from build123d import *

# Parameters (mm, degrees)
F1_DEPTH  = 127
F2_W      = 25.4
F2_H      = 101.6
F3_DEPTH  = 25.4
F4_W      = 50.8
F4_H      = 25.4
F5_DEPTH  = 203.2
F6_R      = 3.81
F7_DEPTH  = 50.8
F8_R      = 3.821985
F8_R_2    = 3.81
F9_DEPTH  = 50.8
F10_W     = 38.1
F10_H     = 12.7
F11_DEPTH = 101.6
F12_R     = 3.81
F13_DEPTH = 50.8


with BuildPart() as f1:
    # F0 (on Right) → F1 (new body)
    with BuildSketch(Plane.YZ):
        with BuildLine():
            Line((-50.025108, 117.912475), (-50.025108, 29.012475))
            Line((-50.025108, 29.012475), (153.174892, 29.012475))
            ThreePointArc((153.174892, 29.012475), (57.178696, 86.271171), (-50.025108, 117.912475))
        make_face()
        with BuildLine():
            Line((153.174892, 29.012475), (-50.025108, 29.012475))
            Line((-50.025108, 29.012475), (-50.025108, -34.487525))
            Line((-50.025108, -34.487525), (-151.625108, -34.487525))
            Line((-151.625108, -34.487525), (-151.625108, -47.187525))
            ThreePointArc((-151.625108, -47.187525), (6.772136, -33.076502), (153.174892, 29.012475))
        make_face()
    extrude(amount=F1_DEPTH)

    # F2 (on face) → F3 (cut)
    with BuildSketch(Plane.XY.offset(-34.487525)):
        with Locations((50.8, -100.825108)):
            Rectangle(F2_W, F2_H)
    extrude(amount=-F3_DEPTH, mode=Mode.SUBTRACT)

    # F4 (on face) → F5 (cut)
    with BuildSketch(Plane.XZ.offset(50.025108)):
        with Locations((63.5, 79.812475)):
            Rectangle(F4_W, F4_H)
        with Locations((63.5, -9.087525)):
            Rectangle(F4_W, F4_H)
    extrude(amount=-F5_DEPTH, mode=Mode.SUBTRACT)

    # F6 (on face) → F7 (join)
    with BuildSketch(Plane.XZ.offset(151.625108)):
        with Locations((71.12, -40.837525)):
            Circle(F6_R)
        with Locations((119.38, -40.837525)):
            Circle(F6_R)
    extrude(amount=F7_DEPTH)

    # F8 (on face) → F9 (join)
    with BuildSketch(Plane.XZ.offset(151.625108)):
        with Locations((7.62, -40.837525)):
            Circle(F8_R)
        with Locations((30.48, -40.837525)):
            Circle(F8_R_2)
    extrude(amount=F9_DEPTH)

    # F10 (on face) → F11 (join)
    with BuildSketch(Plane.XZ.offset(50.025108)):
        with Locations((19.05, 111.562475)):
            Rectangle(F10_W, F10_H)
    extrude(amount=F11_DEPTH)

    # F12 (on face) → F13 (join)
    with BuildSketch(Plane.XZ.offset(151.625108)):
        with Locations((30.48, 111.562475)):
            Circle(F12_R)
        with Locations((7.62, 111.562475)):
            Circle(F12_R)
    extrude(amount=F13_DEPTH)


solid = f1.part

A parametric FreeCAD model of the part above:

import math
import FreeCAD as App
import Part
import Sketcher

V = App.Vector
Q = App.Units.Quantity


def add_polygon(sketch, points):
    """Adds a closed chain of lines whose ends are joined by coincident constraints."""
    first, n = sketch.GeometryCount, len(points)
    for a, b in zip(points, points[1:] + points[:1]):
        sketch.addGeometry(Part.LineSegment(App.Vector(*a, 0), App.Vector(*b, 0)), False)
    for i in range(n):
        sketch.addConstraint(Sketcher.Constraint("Coincident", first + i, 2, first + (i + 1) % n, 1))

doc = App.newDocument("Part")
body = doc.addObject("PartDesign::Body", "Body")

# Sketch on YZ plane
sketch1 = body.newObject("Sketcher::SketchObject", "Sketch")
sketch1.AttachmentSupport = (doc.getObject("YZ_Plane"), [""])
sketch1.MapMode = "FlatFace"
sketch1.addGeometry([
    Part.LineSegment(V(-50.025108, 117.912475, 0), V(-50.025108, -34.487525, 0)),  # 0
    Part.LineSegment(V(-50.025108, -34.487525, 0), V(-151.625108, -34.487525, 0)),  # 1
    Part.LineSegment(V(-151.625108, -34.487525, 0), V(-151.625108, -47.187525, 0)),  # 2
    Part.ArcOfCircle(Part.Circle(V(-117.249571, 463.010327, 0), V(0, 0, 1), 511.354599), math.radians(-93.854585), math.radians(-58.072928)),  # 3
    Part.ArcOfCircle(Part.Circle(V(-121.914378, -323.084428, 0), V(0, 0, 1), 446.818012), math.radians(51.999897), math.radians(80.741348)),  # 4
], False)
sketch1.addConstraint([
    Sketcher.Constraint("Coincident", 0, 2, 1, 1),
    Sketcher.Constraint("Coincident", 1, 2, 2, 1),
    Sketcher.Constraint("Coincident", 2, 2, 3, 1),
    Sketcher.Constraint("Coincident", 3, 2, 4, 1),
    Sketcher.Constraint("Coincident", 4, 2, 0, 1),
    Sketcher.Constraint("Vertical", 0),
    Sketcher.Constraint("Horizontal", 1),
    Sketcher.Constraint("Vertical", 2),
    Sketcher.Constraint("DistanceX", 1, 2, 1, 1, Q("4 in")),
    Sketcher.Constraint("DistanceY", 0, 2, 0, 1, Q("6 in")),
    Sketcher.Constraint("DistanceY", 2, 2, 2, 1, Q("0.5 in")),
    Sketcher.Constraint("Radius", 3, Q("511.354599 mm")),
    Sketcher.Constraint("Radius", 4, Q("446.818012 mm")),
    Sketcher.Constraint("DistanceX", 3, 3, -1, 1, Q("117.249571 mm")),
    Sketcher.Constraint("DistanceX", 4, 3, -1, 1, Q("121.914378 mm")),
    Sketcher.Constraint("DistanceX", 0, 2, -1, 1, Q("50.025108 mm")),
    Sketcher.Constraint("DistanceY", -1, 1, 3, 3, Q("463.010327 mm")),
])
pad1 = body.newObject("PartDesign::Pad", "Pad")
pad1.Profile = sketch1
pad1.Length = Q("5 in")

# Sketch on XY plane
sketch2 = body.newObject("Sketcher::SketchObject", "Sketch001")
sketch2.AttachmentSupport = (doc.getObject("XY_Plane"), [""])
sketch2.MapMode = "FlatFace"
sketch2.AttachmentOffset = App.Placement(V(0, 0, -34.487525), App.Rotation())
add_polygon(sketch2, [(38.1, -50.025108), (38.1, -151.625108), (63.5, -151.625108), (63.5, -50.025108)])  # lines 0-3
sketch2.addConstraint([
    Sketcher.Constraint("Vertical", 0),
    Sketcher.Constraint("Horizontal", 1),
    Sketcher.Constraint("Vertical", 2),
    Sketcher.Constraint("Horizontal", 3),
    Sketcher.Constraint("DistanceX", 1, 1, 1, 2, Q("1 in")),
    Sketcher.Constraint("DistanceY", 0, 2, 0, 1, Q("4 in")),
    Sketcher.Constraint("DistanceX", -1, 1, 0, 2, Q("1.5 in")),
    Sketcher.Constraint("DistanceY", 0, 2, -1, 1, Q("151.625108 mm")),
])
pocket1 = body.newObject("PartDesign::Pocket", "Pocket")
pocket1.Profile = sketch2
pocket1.Length = Q("1 in")

# Sketch on XZ plane
sketch3 = body.newObject("Sketcher::SketchObject", "Sketch002")
sketch3.AttachmentSupport = (doc.getObject("XZ_Plane"), [""])
sketch3.MapMode = "FlatFace"
sketch3.AttachmentOffset = App.Placement(V(0, 0, 50.025108), App.Rotation())
add_polygon(sketch3, [(38.1, 92.512475), (38.1, 67.112475), (88.9, 67.112475), (88.9, 92.512475)])  # lines 0-3
add_polygon(sketch3, [(38.1, 3.612475), (38.1, -21.787525), (88.9, -21.787525), (88.9, 3.612475)])  # lines 4-7
sketch3.addConstraint([
    Sketcher.Constraint("Vertical", 0),
    Sketcher.Constraint("Horizontal", 1),
    Sketcher.Constraint("Vertical", 2),
    Sketcher.Constraint("Horizontal", 3),
    Sketcher.Constraint("Vertical", 4),
    Sketcher.Constraint("Horizontal", 5),
    Sketcher.Constraint("Vertical", 6),
    Sketcher.Constraint("Horizontal", 7),
    Sketcher.Constraint("Vertical", 3, 2, 4, 2),
    Sketcher.Constraint("Vertical", 2, 2, 5, 2),
    Sketcher.Constraint("Equal", 2, 4),
    Sketcher.Constraint("DistanceX", 1, 1, 1, 2, Q("2 in")),
    Sketcher.Constraint("DistanceY", 0, 2, 0, 1, Q("1 in")),
    Sketcher.Constraint("DistanceX", -1, 1, 0, 2, Q("1.5 in")),
    Sketcher.Constraint("DistanceY", 4, 2, 0, 2, Q("3.5 in")),
    Sketcher.Constraint("DistanceY", -1, 1, 0, 2, Q("67.112475 mm")),
])
pocket2 = body.newObject("PartDesign::Pocket", "Pocket001")
pocket2.Profile = sketch3
pocket2.Length = Q("8 in")

# Sketch on XZ plane
sketch4 = body.newObject("Sketcher::SketchObject", "Sketch003")
sketch4.AttachmentSupport = (doc.getObject("XZ_Plane"), [""])
sketch4.MapMode = "FlatFace"
sketch4.AttachmentOffset = App.Placement(V(0, 0, 151.625108), App.Rotation())
sketch4.addGeometry([
    Part.Circle(V(71.12, -40.837525, 0), V(0, 0, 1), 3.81),
    Part.Circle(V(119.38, -40.837525, 0), V(0, 0, 1), 3.81),
], False)
sketch4.addConstraint([
    Sketcher.Constraint("Equal", 0, 1),
    Sketcher.Constraint("Horizontal", 0, 3, 1, 3),
    Sketcher.Constraint("Diameter", 0, Q("0.3 in")),
    Sketcher.Constraint("DistanceX", -1, 1, 0, 3, Q("2.8 in")),
    Sketcher.Constraint("DistanceX", -1, 1, 1, 3, Q("4.7 in")),
    Sketcher.Constraint("DistanceY", 0, 3, -1, 1, Q("40.837525 mm")),
])
pad2 = body.newObject("PartDesign::Pad", "Pad001")
pad2.Profile = sketch4
pad2.Length = Q("2 in")

# Sketch on XZ plane
sketch5 = body.newObject("Sketcher::SketchObject", "Sketch004")
sketch5.AttachmentSupport = (doc.getObject("XZ_Plane"), [""])
sketch5.MapMode = "FlatFace"
sketch5.AttachmentOffset = App.Placement(V(0, 0, 151.625108), App.Rotation())
sketch5.addGeometry([
    Part.Circle(V(7.62, -40.837525, 0), V(0, 0, 1), 3.821985),
    Part.Circle(V(30.48, -40.837525, 0), V(0, 0, 1), 3.81),
], False)
sketch5.addConstraint([
    Sketcher.Constraint("Horizontal", 0, 3, 1, 3),
    Sketcher.Constraint("Diameter", 1, Q("0.3 in")),
    Sketcher.Constraint("DistanceX", -1, 1, 0, 3, Q("0.3 in")),
    Sketcher.Constraint("DistanceX", -1, 1, 1, 3, Q("1.2 in")),
    Sketcher.Constraint("Diameter", 0, Q("7.64397 mm")),
    Sketcher.Constraint("DistanceY", 0, 3, -1, 1, Q("40.837525 mm")),
])
pad3 = body.newObject("PartDesign::Pad", "Pad002")
pad3.Profile = sketch5
pad3.Length = Q("2 in")

# Sketch on XZ plane
sketch6 = body.newObject("Sketcher::SketchObject", "Sketch005")
sketch6.AttachmentSupport = (doc.getObject("XZ_Plane"), [""])
sketch6.MapMode = "FlatFace"
sketch6.AttachmentOffset = App.Placement(V(0, 0, 50.025108), App.Rotation())
add_polygon(sketch6, [(0, 117.912475), (0, 105.212475), (38.1, 105.212475), (38.1, 117.912475)])  # lines 0-3
sketch6.addConstraint([
    Sketcher.Constraint("Vertical", 0),
    Sketcher.Constraint("Horizontal", 1),
    Sketcher.Constraint("Vertical", 2),
    Sketcher.Constraint("Horizontal", 3),
    Sketcher.Constraint("PointOnObject", 0, 2, -2),
    Sketcher.Constraint("DistanceX", 1, 1, 1, 2, Q("1.5 in")),
    Sketcher.Constraint("DistanceY", 0, 2, 0, 1, Q("0.5 in")),
    Sketcher.Constraint("DistanceY", -1, 1, 0, 2, Q("105.212475 mm")),
])
pad4 = body.newObject("PartDesign::Pad", "Pad003")
pad4.Profile = sketch6
pad4.Length = Q("4 in")

# Sketch on XZ plane
sketch7 = body.newObject("Sketcher::SketchObject", "Sketch006")
sketch7.AttachmentSupport = (doc.getObject("XZ_Plane"), [""])
sketch7.MapMode = "FlatFace"
sketch7.AttachmentOffset = App.Placement(V(0, 0, 151.625108), App.Rotation())
sketch7.addGeometry([
    Part.Circle(V(30.48, 111.562475, 0), V(0, 0, 1), 3.81),
    Part.Circle(V(7.62, 111.562475, 0), V(0, 0, 1), 3.81),
], False)
sketch7.addConstraint([
    Sketcher.Constraint("Equal", 0, 1),
    Sketcher.Constraint("Horizontal", 0, 3, 1, 3),
    Sketcher.Constraint("Diameter", 0, Q("0.3 in")),
    Sketcher.Constraint("DistanceX", -1, 1, 0, 3, Q("1.2 in")),
    Sketcher.Constraint("DistanceX", -1, 1, 1, 3, Q("0.3 in")),
    Sketcher.Constraint("DistanceY", -1, 1, 0, 3, Q("111.562475 mm")),
])
pad5 = body.newObject("PartDesign::Pad", "Pad004")
pad5.Profile = sketch7
pad5.Length = Q("2 in")

doc.recompute()
